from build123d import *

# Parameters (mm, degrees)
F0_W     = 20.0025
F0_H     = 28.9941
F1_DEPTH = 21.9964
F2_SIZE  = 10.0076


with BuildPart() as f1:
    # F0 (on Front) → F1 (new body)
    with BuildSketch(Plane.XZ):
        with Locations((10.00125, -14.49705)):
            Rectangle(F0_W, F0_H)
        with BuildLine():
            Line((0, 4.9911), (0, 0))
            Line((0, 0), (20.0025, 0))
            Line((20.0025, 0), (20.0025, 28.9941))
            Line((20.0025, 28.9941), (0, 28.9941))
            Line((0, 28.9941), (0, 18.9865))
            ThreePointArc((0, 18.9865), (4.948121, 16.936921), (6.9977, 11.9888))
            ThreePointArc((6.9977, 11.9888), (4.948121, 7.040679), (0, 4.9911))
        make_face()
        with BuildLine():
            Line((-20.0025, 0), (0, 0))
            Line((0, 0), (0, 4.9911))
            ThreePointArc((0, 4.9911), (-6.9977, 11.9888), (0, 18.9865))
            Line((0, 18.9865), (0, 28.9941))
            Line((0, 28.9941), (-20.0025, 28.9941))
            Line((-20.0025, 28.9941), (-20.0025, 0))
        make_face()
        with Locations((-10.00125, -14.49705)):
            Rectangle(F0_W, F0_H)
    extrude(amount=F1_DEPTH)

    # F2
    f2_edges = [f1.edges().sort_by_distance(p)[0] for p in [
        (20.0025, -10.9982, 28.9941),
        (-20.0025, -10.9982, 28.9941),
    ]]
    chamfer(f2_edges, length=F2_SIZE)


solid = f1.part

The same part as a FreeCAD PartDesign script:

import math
import FreeCAD as App
import Part
import Sketcher
from FreeCAD import Vector
Q = App.Units.Quantity


def edges_at(feature, points):
    """Names of the edges that pass closest to the given points."""
    edges = feature.Shape.Edges
    near = lambda p: min(range(len(edges)), key=lambda i: edges[i].distToShape(Part.Vertex(*p))[0])
    return sorted({f"Edge{near(p) + 1}" for p in points})


def add_polygon(sketch, points):
    """Adds a closed chain of lines whose ends are joined by coincident constraints."""
    first, n = sketch.GeometryCount, len(points)
    for a, b in zip(points, points[1:] + points[:1]):
        sketch.addGeometry(Part.LineSegment(App.Vector(*a, 0), App.Vector(*b, 0)), False)
    for i in range(n):
        sketch.addConstraint(Sketcher.Constraint("Coincident", first + i, 2, first + (i + 1) % n, 1))

doc = App.newDocument("Part")
body = doc.addObject("PartDesign::Body", "Body")

# Sketch on XZ plane
sketch1 = body.newObject("Sketcher::SketchObject", "Sketch")
sketch1.AttachmentSupport = (doc.getObject("XZ_Plane"), [""])
sketch1.MapMode = "FlatFace"
add_polygon(sketch1, [(20, -29), (20, 29), (-20, 29), (-20, -29)])  # lines 0-3
sketch1.addGeometry(Part.ArcOfCircle(Part.Circle(Vector(0, 12, 0), Vector(0, 0, 1), 7), math.radians(0), math.radians(90)), False)  # 4
sketch1.addGeometry(Part.ArcOfCircle(Part.Circle(Vector(0, 12, 0), Vector(0, 0, 1), 7), math.radians(-90), math.radians(0)), False)  # 5
sketch1.addGeometry(Part.ArcOfCircle(Part.Circle(Vector(0, 12, 0), Vector(0, 0, 1), 7), math.radians(90), math.radians(270)), False)  # 6
sketch1.addConstraint(Sketcher.Constraint("Tangent", 4, 1, 5, 2))
sketch1.addConstraint(Sketcher.Constraint("Tangent", 5, 1, 6, 2))
sketch1.addConstraint(Sketcher.Constraint("Tangent", 6, 1, 4, 2))
sketch1.addConstraint(Sketcher.Constraint("Vertical", 0))
sketch1.addConstraint(Sketcher.Constraint("Horizontal", 1))
sketch1.addConstraint(Sketcher.Constraint("Vertical", 2))
sketch1.addConstraint(Sketcher.Constraint("Horizontal", 3))
sketch1.addConstraint(Sketcher.Constraint("Symmetric", 0, 2, 2, 2, -1, 1))
sketch1.addConstraint(Sketcher.Constraint("PointOnObject", 4, 3, -2))
sketch1.addConstraint(Sketcher.Constraint("PointOnObject", 5, 1, -2))
sketch1.addConstraint(Sketcher.Constraint("PointOnObject", 6, 1, -2))
sketch1.addConstraint(Sketcher.Constraint("Horizontal", 6, 3, 4, 1))
sketch1.addConstraint(Sketcher.Constraint("Radius", 4, Q("0.2755 in")))
sketch1.addConstraint(Sketcher.Constraint("DistanceX", 1, 2, 1, 1, Q("1.575 in")))
sketch1.addConstraint(Sketcher.Constraint("DistanceY", 0, 1, 0, 2, Q("2.283 in")))
sketch1.addConstraint(Sketcher.Constraint("DistanceY", -1, 1, 4, 3, Q("0.472 in")))
pad1 = body.newObject("PartDesign::Pad", "Pad")
pad1.Profile = sketch1
pad1.Length = Q("0.866 in")
doc.recompute()

chamfer = body.newObject("PartDesign::Chamfer", "Chamfer")
chamfer.Base = (pad1, edges_at(pad1, [(20.003, -10.998, 28.994), (-20.003, -10.998, 28.994)]))
chamfer.Size = Q("0.394 in")

doc.recompute()
